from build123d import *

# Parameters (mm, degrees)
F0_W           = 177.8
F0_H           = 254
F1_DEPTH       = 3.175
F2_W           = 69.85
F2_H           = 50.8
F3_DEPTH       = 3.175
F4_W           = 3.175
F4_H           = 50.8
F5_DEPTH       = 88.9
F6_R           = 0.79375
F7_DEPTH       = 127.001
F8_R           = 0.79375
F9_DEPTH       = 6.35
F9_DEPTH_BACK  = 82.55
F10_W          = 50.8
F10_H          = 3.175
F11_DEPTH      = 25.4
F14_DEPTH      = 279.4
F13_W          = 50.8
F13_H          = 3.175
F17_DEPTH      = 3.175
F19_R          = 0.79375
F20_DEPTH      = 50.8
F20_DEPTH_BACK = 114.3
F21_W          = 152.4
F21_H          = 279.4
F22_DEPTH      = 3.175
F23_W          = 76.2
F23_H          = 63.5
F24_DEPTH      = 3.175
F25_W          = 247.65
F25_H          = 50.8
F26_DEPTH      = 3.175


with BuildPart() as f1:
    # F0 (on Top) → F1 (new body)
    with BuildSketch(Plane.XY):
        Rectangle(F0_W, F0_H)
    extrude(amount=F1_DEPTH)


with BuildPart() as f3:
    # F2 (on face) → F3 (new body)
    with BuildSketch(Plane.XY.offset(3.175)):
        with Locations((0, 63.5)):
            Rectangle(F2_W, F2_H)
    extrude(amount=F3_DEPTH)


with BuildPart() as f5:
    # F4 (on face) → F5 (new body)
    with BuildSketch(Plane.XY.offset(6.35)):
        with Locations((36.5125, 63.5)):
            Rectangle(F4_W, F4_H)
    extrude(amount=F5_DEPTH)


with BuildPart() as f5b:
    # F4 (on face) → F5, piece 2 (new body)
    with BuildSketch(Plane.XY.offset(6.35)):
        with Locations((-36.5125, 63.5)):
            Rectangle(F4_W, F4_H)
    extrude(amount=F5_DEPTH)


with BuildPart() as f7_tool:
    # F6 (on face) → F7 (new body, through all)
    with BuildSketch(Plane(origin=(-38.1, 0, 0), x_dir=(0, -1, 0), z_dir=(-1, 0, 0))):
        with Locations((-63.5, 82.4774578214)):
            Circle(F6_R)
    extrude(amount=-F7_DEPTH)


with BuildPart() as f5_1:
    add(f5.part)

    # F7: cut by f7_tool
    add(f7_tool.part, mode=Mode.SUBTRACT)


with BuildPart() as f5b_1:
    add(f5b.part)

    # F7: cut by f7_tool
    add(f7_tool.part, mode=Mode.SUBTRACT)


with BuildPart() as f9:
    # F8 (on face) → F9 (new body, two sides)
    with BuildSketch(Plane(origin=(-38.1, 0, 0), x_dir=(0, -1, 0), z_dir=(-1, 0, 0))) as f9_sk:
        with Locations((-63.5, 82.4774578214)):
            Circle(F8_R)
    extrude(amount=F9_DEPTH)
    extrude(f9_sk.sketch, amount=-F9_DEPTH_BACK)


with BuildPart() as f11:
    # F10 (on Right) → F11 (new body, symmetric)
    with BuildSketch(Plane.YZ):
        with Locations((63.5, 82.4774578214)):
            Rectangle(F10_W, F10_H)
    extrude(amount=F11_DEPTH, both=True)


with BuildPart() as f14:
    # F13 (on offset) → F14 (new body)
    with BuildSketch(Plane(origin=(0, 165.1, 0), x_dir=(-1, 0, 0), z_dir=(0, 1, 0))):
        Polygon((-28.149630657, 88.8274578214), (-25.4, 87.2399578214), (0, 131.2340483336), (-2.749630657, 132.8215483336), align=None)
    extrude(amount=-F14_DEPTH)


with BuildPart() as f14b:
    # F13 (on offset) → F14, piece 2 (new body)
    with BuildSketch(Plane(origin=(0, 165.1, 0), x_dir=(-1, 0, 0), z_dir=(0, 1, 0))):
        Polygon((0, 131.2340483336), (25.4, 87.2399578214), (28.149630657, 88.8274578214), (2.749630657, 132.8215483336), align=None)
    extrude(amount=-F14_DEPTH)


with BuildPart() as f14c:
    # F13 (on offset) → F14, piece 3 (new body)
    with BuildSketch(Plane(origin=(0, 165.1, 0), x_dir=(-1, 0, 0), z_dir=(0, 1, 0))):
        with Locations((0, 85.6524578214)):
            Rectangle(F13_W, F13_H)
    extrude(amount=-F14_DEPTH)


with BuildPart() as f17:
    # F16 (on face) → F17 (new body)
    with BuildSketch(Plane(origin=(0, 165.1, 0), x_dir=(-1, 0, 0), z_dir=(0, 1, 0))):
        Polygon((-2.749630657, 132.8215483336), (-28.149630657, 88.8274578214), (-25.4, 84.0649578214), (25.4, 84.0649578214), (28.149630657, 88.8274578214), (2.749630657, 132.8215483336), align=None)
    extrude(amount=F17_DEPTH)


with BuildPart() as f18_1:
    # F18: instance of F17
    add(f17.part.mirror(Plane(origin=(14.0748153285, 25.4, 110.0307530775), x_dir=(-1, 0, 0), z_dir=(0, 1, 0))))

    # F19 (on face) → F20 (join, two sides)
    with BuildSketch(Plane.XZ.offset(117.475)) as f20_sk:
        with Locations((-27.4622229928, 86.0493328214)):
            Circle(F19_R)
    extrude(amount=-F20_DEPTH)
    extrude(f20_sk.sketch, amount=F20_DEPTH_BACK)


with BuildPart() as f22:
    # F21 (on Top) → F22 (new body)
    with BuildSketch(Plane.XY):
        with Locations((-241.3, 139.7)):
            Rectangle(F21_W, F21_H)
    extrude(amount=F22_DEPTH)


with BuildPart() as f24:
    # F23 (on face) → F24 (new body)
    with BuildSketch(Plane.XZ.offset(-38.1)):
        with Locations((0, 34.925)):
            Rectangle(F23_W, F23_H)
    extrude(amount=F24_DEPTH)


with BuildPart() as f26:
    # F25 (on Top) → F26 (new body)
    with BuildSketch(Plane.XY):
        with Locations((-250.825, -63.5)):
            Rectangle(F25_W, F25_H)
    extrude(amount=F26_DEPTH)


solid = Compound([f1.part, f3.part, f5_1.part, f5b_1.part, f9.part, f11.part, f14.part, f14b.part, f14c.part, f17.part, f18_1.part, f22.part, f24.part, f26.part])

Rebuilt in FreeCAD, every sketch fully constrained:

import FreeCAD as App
import Part
import Sketcher
from FreeCAD import Vector
Q = App.Units.Quantity


def add_polygon(sketch, points):
    """Adds a closed chain of lines whose ends are joined by coincident constraints."""
    first, n = sketch.GeometryCount, len(points)
    for a, b in zip(points, points[1:] + points[:1]):
        sketch.addGeometry(Part.LineSegment(App.Vector(*a, 0), App.Vector(*b, 0)), False)
    for i in range(n):
        sketch.addConstraint(Sketcher.Constraint("Coincident", first + i, 2, first + (i + 1) % n, 1))

doc = App.newDocument("Part")
body = doc.addObject("PartDesign::Body", "Body")

# Sketch on XY plane
sketch1 = doc.addObject("Sketcher::SketchObject", "Sketch")
body.addObject(sketch1)
sketch1.AttachmentSupport = (doc.XY_Plane, [""])
sketch1.MapMode = "FlatFace"
add_polygon(sketch1, [(-89, 127), (-89, -127), (89, -127), (89, 127)])  # lines 0-3
sketch1.addConstraint([
    Sketcher.Constraint("Vertical", 0),
    Sketcher.Constraint("Horizontal", 1),
    Sketcher.Constraint("Vertical", 2),
    Sketcher.Constraint("Horizontal", 3),
    Sketcher.Constraint("Symmetric", 0, 2, 2, 2, -1, 1),
    Sketcher.Constraint("DistanceX", 1, 1, 1, 2, Q("7 in")),
    Sketcher.Constraint("DistanceY", 0, 2, 0, 1, Q("10 in")),
])
pad1 = doc.addObject("PartDesign::Pad", "Pad")
body.addObject(pad1)
pad1.Profile = sketch1
pad1.Length = Q("0.125 in")
body2 = doc.addObject("PartDesign::Body", "Body001")

# Sketch on XY plane
sketch2 = doc.addObject("Sketcher::SketchObject", "Sketch001")
body2.addObject(sketch2)
sketch2.AttachmentSupport = (doc.getObject("XY_Plane001"), [""])
sketch2.MapMode = "FlatFace"
sketch2.AttachmentOffset = App.Placement(Vector(0, 0, 0.125 * 25.4), App.Rotation())
add_polygon(sketch2, [(-35, 89), (-35, 38), (35, 38), (35, 89)])  # lines 0-3
sketch2.addConstraint([
    Sketcher.Constraint("Vertical", 0),
    Sketcher.Constraint("Horizontal", 1),
    Sketcher.Constraint("Vertical", 2),
    Sketcher.Constraint("Horizontal", 3),
    Sketcher.Constraint("DistanceY", 0, 2, 0, 1, Q("2 in")),
    Sketcher.Constraint("DistanceX", 1, 1, 1, 2, Q("2.75 in")),
    Sketcher.Constraint("DistanceY", -1, 1, 0, 2, Q("1.5 in")),
    Sketcher.Constraint("DistanceX", 0, 2, -1, 1, Q("1.375 in")),
])
pad2 = doc.addObject("PartDesign::Pad", "Pad001")
body2.addObject(pad2)
pad2.Profile = sketch2
pad2.Length = Q("0.125 in")
body3 = doc.addObject("PartDesign::Body", "Body002")

# Sketch on XY plane
sketch3 = doc.addObject("Sketcher::SketchObject", "Sketch002")
body3.addObject(sketch3)
sketch3.AttachmentSupport = (doc.getObject("XY_Plane002"), [""])
sketch3.MapMode = "FlatFace"
sketch3.AttachmentOffset = App.Placement(Vector(0, 0, 0.25 * 25.4), App.Rotation())
add_polygon(sketch3, [(34.9, 88.9), (34.9, 38.1), (38.1, 38.1), (38.1, 88.9)])  # lines 0-3
sketch3.addConstraint([
    Sketcher.Constraint("Vertical", 0),
    Sketcher.Constraint("Horizontal", 1),
    Sketcher.Constraint("Vertical", 2),
    Sketcher.Constraint("Horizontal", 3),
    Sketcher.Constraint("DistanceY", 0, 2, 0, 1, Q("2 in")),
    Sketcher.Constraint("DistanceY", -1, 1, 0, 2, Q("1.5 in")),
    Sketcher.Constraint("DistanceX", -1, 1, 1, 2, Q("1.5 in")),
    Sketcher.Constraint("DistanceX", 1, 1, 1, 2, Q("0.125 in")),
])
pad3 = doc.addObject("PartDesign::Pad", "Pad002")
body3.addObject(pad3)
pad3.Profile = sketch3
pad3.Length = Q("3.5 in")
body4 = doc.addObject("PartDesign::Body", "Body003")

# Sketch on XY plane
sketch4 = doc.addObject("Sketcher::SketchObject", "Sketch003")
body4.addObject(sketch4)
sketch4.AttachmentSupport = (doc.getObject("XY_Plane003"), [""])
sketch4.MapMode = "FlatFace"
sketch4.AttachmentOffset = App.Placement(Vector(0, 0, 0.25 * 25.4), App.Rotation())
add_polygon(sketch4, [(-38.1, 88.9), (-38.1, 38.1), (-34.9, 38.1), (-34.9, 88.9)])  # lines 0-3
sketch4.addConstraint([
    Sketcher.Constraint("Vertical", 0),
    Sketcher.Constraint("Horizontal", 1),
    Sketcher.Constraint("Vertical", 2),
    Sketcher.Constraint("Horizontal", 3),
    Sketcher.Constraint("DistanceY", 0, 2, 0, 1, Q("2 in")),
    Sketcher.Constraint("DistanceX", 0, 2, -1, 1, Q("1.5 in")),
    Sketcher.Constraint("DistanceY", -1, 1, 0, 2, Q("1.5 in")),
    Sketcher.Constraint("DistanceX", 1, 1, 1, 2, Q("0.125 in")),
])
pad4 = doc.addObject("PartDesign::Pad", "Pad003")
body4.addObject(pad4)
pad4.Profile = sketch4
pad4.Length = Q("3.5 in")
body5 = doc.addObject("PartDesign::Body", "Body004")

# Sketch on YZ plane
sketch5 = doc.addObject("Sketcher::SketchObject", "Sketch004")
body5.addObject(sketch5)
sketch5.AttachmentSupport = (doc.getObject("YZ_Plane004"), [""])
sketch5.MapMode = "FlatFace"
sketch5.AttachmentOffset = App.Placement(Vector(0, 0, -1.5 * 25.4), App.Rotation())
sketch5.addGeometry(Part.Circle(Vector(63.5, 82.5, 0), Vector(0, 0, 1), 0.8), False)
sketch5.addConstraint([
    Sketcher.Constraint("Diameter", 0, Q("0.0625 in")),
    Sketcher.Constraint("DistanceX", -1, 1, 0, 3, Q("2.5 in")),
    Sketcher.Constraint("DistanceY", -1, 1, 0, 3, 82.477458),
])
pad5 = doc.addObject("PartDesign::Pad", "Pad004")
body5.addObject(pad5)
pad5.Profile = sketch5
pad5.Length = 127.001
doc.recompute()

body6 = doc.addObject("PartDesign::Body", "Body005")
body6.BaseFeature = body5
boolean = doc.addObject("PartDesign::Boolean", "Boolean")
body3.addObject(boolean)
boolean.Type = "Cut"
boolean.addObjects([body6])
doc.recompute()

boolean2 = doc.addObject("PartDesign::Boolean", "Boolean001")
body4.addObject(boolean2)
boolean2.Type = "Cut"
boolean2.addObjects([body5])
body7 = doc.addObject("PartDesign::Body", "Body006")

# Sketch on YZ plane
sketch6 = doc.addObject("Sketcher::SketchObject", "Sketch005")
body7.addObject(sketch6)
sketch6.AttachmentSupport = (doc.getObject("YZ_Plane006"), [""])
sketch6.MapMode = "FlatFace"
sketch6.AttachmentOffset = App.Placement(Vector(0, 0, -1.5 * 25.4), App.Rotation())
sketch6.addGeometry(Part.Circle(Vector(63.5, 82.5, 0), Vector(0, 0, 1), 0.8), False)
sketch6.addConstraint([
    Sketcher.Constraint("Diameter", 0, Q("0.0625 in")),
    Sketcher.Constraint("DistanceX", -1, 1, 0, 3, Q("2.5 in")),
    Sketcher.Constraint("DistanceY", -1, 1, 0, 3, 82.477458),
])
pad6 = doc.addObject("PartDesign::Pad", "Pad005")
body7.addObject(pad6)
pad6.Profile = sketch6
pad6.Type = "TwoLengths"
pad6.Length = Q("0.25 in")
pad6.Length2 = Q("3.25 in")
pad6.Reversed = True
body8 = doc.addObject("PartDesign::Body", "Body007")

# Sketch on YZ plane
sketch7 = doc.addObject("Sketcher::SketchObject", "Sketch006")
body8.addObject(sketch7)
sketch7.AttachmentSupport = (doc.getObject("YZ_Plane007"), [""])
sketch7.MapMode = "FlatFace"
add_polygon(sketch7, [(38.1, 84.1), (38.1, 80.9), (88.9, 80.9), (88.9, 84.1)])  # lines 0-3
sketch7.addConstraint([
    Sketcher.Constraint("Vertical", 0),
    Sketcher.Constraint("Horizontal", 1),
    Sketcher.Constraint("Vertical", 2),
    Sketcher.Constraint("Horizontal", 3),
    Sketcher.Constraint("DistanceX", 1, 1, 1, 2, Q("2 in")),
    Sketcher.Constraint("DistanceX", -1, 1, 0, 2, Q("1.5 in")),
    Sketcher.Constraint("DistanceY", 0, 2, 0, 1, Q("0.125 in")),
    Sketcher.Constraint("DistanceY", -1, 1, 0, 2, 80.889958),
])
pad7 = doc.addObject("PartDesign::Pad", "Pad006")
body8.addObject(pad7)
pad7.Profile = sketch7
pad7.Length = Q("2 in")
pad7.Midplane = True
body9 = doc.addObject("PartDesign::Body", "Body008")

# Sketch on XZ plane
sketch8 = doc.addObject("Sketcher::SketchObject", "Sketch007")
body9.addObject(sketch8)
sketch8.AttachmentSupport = (doc.getObject("XZ_Plane008"), [""])
sketch8.MapMode = "FlatFace"
sketch8.AttachmentOffset = App.Placement(Vector(0, 0, -6.5 * 25.4), App.Rotation())
add_polygon(sketch8, [(28.1, 88.8), (25.4, 87.2), (0, 131.2), (2.7, 132.8)])  # lines 0-3
sketch8.addConstraint([
    Sketcher.Constraint("PointOnObject", 1, 2, -2),
    Sketcher.Constraint("Perpendicular", 0, 1),
    Sketcher.Constraint("Perpendicular", 1, 2),
    Sketcher.Constraint("Perpendicular", 2, 3),
    Sketcher.Constraint("Distance", 1, Q("2 in")),
    Sketcher.Constraint("DistanceX", -1, 1, 0, 2, Q("1 in")),
    Sketcher.Constraint("Distance", 0, Q("0.125 in")),
    Sketcher.Constraint("DistanceY", -1, 1, 1, 2, 131.234048),
])
pad8 = doc.addObject("PartDesign::Pad", "Pad007")
body9.addObject(pad8)
pad8.Profile = sketch8
pad8.Length = Q("11 in")
body10 = doc.addObject("PartDesign::Body", "Body009")

# Sketch on XZ plane
sketch9 = doc.addObject("Sketcher::SketchObject", "Sketch008")
body10.addObject(sketch9)
sketch9.AttachmentSupport = (doc.getObject("XZ_Plane009"), [""])
sketch9.MapMode = "FlatFace"
sketch9.AttachmentOffset = App.Placement(Vector(0, 0, -6.5 * 25.4), App.Rotation())
add_polygon(sketch9, [(0, 131.2), (-25.4, 87.2), (-28.1, 88.8), (-2.7, 132.8)])  # lines 0-3
sketch9.addConstraint([
    Sketcher.Constraint("PointOnObject", 3, 2, -2),
    Sketcher.Constraint("Perpendicular", 0, 1),
    Sketcher.Constraint("Perpendicular", 1, 2),
    Sketcher.Constraint("Perpendicular", 2, 3),
    Sketcher.Constraint("Distance", 0, Q("2 in")),
    Sketcher.Constraint("DistanceX", 0, 2, -1, 1, Q("1 in")),
    Sketcher.Constraint("Distance", 1, Q("0.125 in")),
    Sketcher.Constraint("DistanceY", -1, 1, 2, 2, 132.821548),
])
pad9 = doc.addObject("PartDesign::Pad", "Pad008")
body10.addObject(pad9)
pad9.Profile = sketch9
pad9.Length = Q("11 in")
body11 = doc.addObject("PartDesign::Body", "Body010")

# Sketch on XZ plane
sketch10 = doc.addObject("Sketcher::SketchObject", "Sketch009")
body11.addObject(sketch10)
sketch10.AttachmentSupport = (doc.getObject("XZ_Plane010"), [""])
sketch10.MapMode = "FlatFace"
sketch10.AttachmentOffset = App.Placement(Vector(0, 0, -6.5 * 25.4), App.Rotation())
add_polygon(sketch10, [(25.4, 87.2), (25.4, 84.1), (-25.4, 84.1), (-25.4, 87.2)])  # lines 0-3
sketch10.addConstraint([
    Sketcher.Constraint("Vertical", 0),
    Sketcher.Constraint("Horizontal", 1),
    Sketcher.Constraint("Vertical", 2),
    Sketcher.Constraint("Horizontal", 3),
    Sketcher.Constraint("DistanceX", 1, 2, 1, 1, Q("2 in")),
    Sketcher.Constraint("DistanceX", -1, 1, 0, 2, Q("1 in")),
    Sketcher.Constraint("DistanceY", 0, 2, 0, 1, Q("0.125 in")),
    Sketcher.Constraint("DistanceY", -1, 1, 0, 2, 84.064958),
])
pad10 = doc.addObject("PartDesign::Pad", "Pad009")
body11.addObject(pad10)
pad10.Profile = sketch10
pad10.Length = Q("11 in")
body12 = doc.addObject("PartDesign::Body", "Body011")

# Sketch on XZ plane
sketch11 = doc.addObject("Sketcher::SketchObject", "Sketch010")
body12.addObject(sketch11)
sketch11.AttachmentSupport = (doc.getObject("XZ_Plane011"), [""])
sketch11.MapMode = "FlatFace"
sketch11.AttachmentOffset = App.Placement(Vector(0, 0, -6.5 * 25.4), App.Rotation())
add_polygon(sketch11, [(3, 133), (28, 89), (25, 84), (-25, 84), (-28, 89), (-3, 133)])  # lines 0-5
sketch11.addConstraint([
    Sketcher.Constraint("Horizontal", 2),
    Sketcher.Constraint("Horizontal", 5),
    Sketcher.Constraint("Symmetric", 0, 2, 3, 2, -2),
    Sketcher.Constraint("Parallel", 0, 3),
    Sketcher.Constraint("Parallel", 1, 4),
    Sketcher.Constraint("Equal", 1, 3),
    Sketcher.Constraint("DistanceX", 2, 2, 2, 1, Q("2 in")),
    Sketcher.Constraint("Distance", 0, Q("2 in")),
    Sketcher.Constraint("Angle", 0, Q("-60 deg")),
    Sketcher.Constraint("DistanceY", 1, 2, 0, 2, Q("0.1875 in")),
    Sketcher.Constraint("DistanceY", -1, 1, 4, 2, 132.821548),
])
pad11 = doc.addObject("PartDesign::Pad", "Pad010")
body12.addObject(pad11)
pad11.Profile = sketch11
pad11.Length = Q("0.125 in")
pad11.Reversed = True
body13 = doc.addObject("PartDesign::Body", "Body012")
body13.AllowCompound = True
doc.recompute()

mirroring = doc.addObject("Part::Mirroring", "Mirroring")
mirroring.Source = body12
mirroring.Base = Vector(14.074815, 25.4, 110.030753)
mirroring.Normal = Vector(0, 1, 0)
body13.BaseFeature = mirroring
doc.recompute()

# Sketch on XZ plane
sketch12 = doc.addObject("Sketcher::SketchObject", "Sketch011")
body13.addObject(sketch12)
sketch12.AttachmentSupport = (doc.getObject("XZ_Plane012"), [""])
sketch12.MapMode = "FlatFace"
sketch12.AttachmentOffset = App.Placement(Vector(0, 0, 4.625 * 25.4), App.Rotation())
sketch12.addGeometry(Part.Circle(Vector(-27.5, 86, 0), Vector(0, 0, 1), 0.8), False)
sketch12.addConstraint([
    Sketcher.Constraint("Diameter", 0, Q("0.0625 in")),
    Sketcher.Constraint("DistanceX", 0, 3, -1, 1, 27.462223),
    Sketcher.Constraint("DistanceY", -1, 1, 0, 3, 86.049333),
])
pad12 = doc.addObject("PartDesign::Pad", "Pad011")
body13.addObject(pad12)
pad12.Profile = sketch12
pad12.Type = "TwoLengths"
pad12.Length = Q("2 in")
pad12.Length2 = Q("4.5 in")
pad12.Reversed = True
body14 = doc.addObject("PartDesign::Body", "Body013")

# Sketch on XY plane
sketch13 = doc.addObject("Sketcher::SketchObject", "Sketch012")
body14.addObject(sketch13)
sketch13.AttachmentSupport = (doc.getObject("XY_Plane013"), [""])
sketch13.MapMode = "FlatFace"
add_polygon(sketch13, [(-318, 279), (-318, 0), (-165, 0), (-165, 279)])  # lines 0-3
sketch13.addConstraint([
    Sketcher.Constraint("Vertical", 0),
    Sketcher.Constraint("Horizontal", 1),
    Sketcher.Constraint("Vertical", 2),
    Sketcher.Constraint("Horizontal", 3),
    Sketcher.Constraint("PointOnObject", 0, 2, -1),
    Sketcher.Constraint("DistanceX", 1, 1, 1, 2, Q("6 in")),
    Sketcher.Constraint("DistanceY", 0, 2, 0, 1, Q("11 in")),
    Sketcher.Constraint("DistanceX", 0, 2, -1, 1, Q("12.5 in")),
])
pad13 = doc.addObject("PartDesign::Pad", "Pad012")
body14.addObject(pad13)
pad13.Profile = sketch13
pad13.Length = Q("0.125 in")
body15 = doc.addObject("PartDesign::Body", "Body014")

# Sketch on XZ plane
sketch14 = doc.addObject("Sketcher::SketchObject", "Sketch013")
body15.addObject(sketch14)
sketch14.AttachmentSupport = (doc.getObject("XZ_Plane014"), [""])
sketch14.MapMode = "FlatFace"
sketch14.AttachmentOffset = App.Placement(Vector(0, 0, -1.5 * 25.4), App.Rotation())
add_polygon(sketch14, [(-38, 67), (-38, 3), (38, 3), (38, 67)])  # lines 0-3
sketch14.addConstraint([
    Sketcher.Constraint("Vertical", 0),
    Sketcher.Constraint("Horizontal", 1),
    Sketcher.Constraint("Vertical", 2),
    Sketcher.Constraint("Horizontal", 3),
    Sketcher.Constraint("DistanceX", 1, 1, 1, 2, Q("3 in")),
    Sketcher.Constraint("DistanceY", 0, 2, 0, 1, Q("2.5 in")),
    Sketcher.Constraint("DistanceX", 0, 2, -1, 1, Q("1.5 in")),
    Sketcher.Constraint("DistanceY", -1, 1, 0, 2, Q("0.125 in")),
])
pad14 = doc.addObject("PartDesign::Pad", "Pad013")
body15.addObject(pad14)
pad14.Profile = sketch14
pad14.Length = Q("0.125 in")
body16 = doc.addObject("PartDesign::Body", "Body015")

# Sketch on XY plane
sketch15 = doc.addObject("Sketcher::SketchObject", "Sketch014")
body16.addObject(sketch15)
sketch15.AttachmentSupport = (doc.getObject("XY_Plane015"), [""])
sketch15.MapMode = "FlatFace"
add_polygon(sketch15, [(-375, -38), (-375, -89), (-127, -89), (-127, -38)])  # lines 0-3
sketch15.addConstraint([
    Sketcher.Constraint("Vertical", 0),
    Sketcher.Constraint("Horizontal", 1),
    Sketcher.Constraint("Vertical", 2),
    Sketcher.Constraint("Horizontal", 3),
    Sketcher.Constraint("DistanceY", 0, 2, 0, 1, Q("2 in")),
    Sketcher.Constraint("DistanceX", 1, 2, -1, 1, Q("5 in")),
    Sketcher.Constraint("DistanceX", 1, 1, 1, 2, Q("9.75 in")),
    Sketcher.Constraint("DistanceY", 0, 2, -1, 1, Q("3.5 in")),
])
pad15 = doc.addObject("PartDesign::Pad", "Pad014")
body16.addObject(pad15)
pad15.Profile = sketch15
pad15.Length = Q("0.125 in")
mirroring.Visibility = False

doc.recompute()
